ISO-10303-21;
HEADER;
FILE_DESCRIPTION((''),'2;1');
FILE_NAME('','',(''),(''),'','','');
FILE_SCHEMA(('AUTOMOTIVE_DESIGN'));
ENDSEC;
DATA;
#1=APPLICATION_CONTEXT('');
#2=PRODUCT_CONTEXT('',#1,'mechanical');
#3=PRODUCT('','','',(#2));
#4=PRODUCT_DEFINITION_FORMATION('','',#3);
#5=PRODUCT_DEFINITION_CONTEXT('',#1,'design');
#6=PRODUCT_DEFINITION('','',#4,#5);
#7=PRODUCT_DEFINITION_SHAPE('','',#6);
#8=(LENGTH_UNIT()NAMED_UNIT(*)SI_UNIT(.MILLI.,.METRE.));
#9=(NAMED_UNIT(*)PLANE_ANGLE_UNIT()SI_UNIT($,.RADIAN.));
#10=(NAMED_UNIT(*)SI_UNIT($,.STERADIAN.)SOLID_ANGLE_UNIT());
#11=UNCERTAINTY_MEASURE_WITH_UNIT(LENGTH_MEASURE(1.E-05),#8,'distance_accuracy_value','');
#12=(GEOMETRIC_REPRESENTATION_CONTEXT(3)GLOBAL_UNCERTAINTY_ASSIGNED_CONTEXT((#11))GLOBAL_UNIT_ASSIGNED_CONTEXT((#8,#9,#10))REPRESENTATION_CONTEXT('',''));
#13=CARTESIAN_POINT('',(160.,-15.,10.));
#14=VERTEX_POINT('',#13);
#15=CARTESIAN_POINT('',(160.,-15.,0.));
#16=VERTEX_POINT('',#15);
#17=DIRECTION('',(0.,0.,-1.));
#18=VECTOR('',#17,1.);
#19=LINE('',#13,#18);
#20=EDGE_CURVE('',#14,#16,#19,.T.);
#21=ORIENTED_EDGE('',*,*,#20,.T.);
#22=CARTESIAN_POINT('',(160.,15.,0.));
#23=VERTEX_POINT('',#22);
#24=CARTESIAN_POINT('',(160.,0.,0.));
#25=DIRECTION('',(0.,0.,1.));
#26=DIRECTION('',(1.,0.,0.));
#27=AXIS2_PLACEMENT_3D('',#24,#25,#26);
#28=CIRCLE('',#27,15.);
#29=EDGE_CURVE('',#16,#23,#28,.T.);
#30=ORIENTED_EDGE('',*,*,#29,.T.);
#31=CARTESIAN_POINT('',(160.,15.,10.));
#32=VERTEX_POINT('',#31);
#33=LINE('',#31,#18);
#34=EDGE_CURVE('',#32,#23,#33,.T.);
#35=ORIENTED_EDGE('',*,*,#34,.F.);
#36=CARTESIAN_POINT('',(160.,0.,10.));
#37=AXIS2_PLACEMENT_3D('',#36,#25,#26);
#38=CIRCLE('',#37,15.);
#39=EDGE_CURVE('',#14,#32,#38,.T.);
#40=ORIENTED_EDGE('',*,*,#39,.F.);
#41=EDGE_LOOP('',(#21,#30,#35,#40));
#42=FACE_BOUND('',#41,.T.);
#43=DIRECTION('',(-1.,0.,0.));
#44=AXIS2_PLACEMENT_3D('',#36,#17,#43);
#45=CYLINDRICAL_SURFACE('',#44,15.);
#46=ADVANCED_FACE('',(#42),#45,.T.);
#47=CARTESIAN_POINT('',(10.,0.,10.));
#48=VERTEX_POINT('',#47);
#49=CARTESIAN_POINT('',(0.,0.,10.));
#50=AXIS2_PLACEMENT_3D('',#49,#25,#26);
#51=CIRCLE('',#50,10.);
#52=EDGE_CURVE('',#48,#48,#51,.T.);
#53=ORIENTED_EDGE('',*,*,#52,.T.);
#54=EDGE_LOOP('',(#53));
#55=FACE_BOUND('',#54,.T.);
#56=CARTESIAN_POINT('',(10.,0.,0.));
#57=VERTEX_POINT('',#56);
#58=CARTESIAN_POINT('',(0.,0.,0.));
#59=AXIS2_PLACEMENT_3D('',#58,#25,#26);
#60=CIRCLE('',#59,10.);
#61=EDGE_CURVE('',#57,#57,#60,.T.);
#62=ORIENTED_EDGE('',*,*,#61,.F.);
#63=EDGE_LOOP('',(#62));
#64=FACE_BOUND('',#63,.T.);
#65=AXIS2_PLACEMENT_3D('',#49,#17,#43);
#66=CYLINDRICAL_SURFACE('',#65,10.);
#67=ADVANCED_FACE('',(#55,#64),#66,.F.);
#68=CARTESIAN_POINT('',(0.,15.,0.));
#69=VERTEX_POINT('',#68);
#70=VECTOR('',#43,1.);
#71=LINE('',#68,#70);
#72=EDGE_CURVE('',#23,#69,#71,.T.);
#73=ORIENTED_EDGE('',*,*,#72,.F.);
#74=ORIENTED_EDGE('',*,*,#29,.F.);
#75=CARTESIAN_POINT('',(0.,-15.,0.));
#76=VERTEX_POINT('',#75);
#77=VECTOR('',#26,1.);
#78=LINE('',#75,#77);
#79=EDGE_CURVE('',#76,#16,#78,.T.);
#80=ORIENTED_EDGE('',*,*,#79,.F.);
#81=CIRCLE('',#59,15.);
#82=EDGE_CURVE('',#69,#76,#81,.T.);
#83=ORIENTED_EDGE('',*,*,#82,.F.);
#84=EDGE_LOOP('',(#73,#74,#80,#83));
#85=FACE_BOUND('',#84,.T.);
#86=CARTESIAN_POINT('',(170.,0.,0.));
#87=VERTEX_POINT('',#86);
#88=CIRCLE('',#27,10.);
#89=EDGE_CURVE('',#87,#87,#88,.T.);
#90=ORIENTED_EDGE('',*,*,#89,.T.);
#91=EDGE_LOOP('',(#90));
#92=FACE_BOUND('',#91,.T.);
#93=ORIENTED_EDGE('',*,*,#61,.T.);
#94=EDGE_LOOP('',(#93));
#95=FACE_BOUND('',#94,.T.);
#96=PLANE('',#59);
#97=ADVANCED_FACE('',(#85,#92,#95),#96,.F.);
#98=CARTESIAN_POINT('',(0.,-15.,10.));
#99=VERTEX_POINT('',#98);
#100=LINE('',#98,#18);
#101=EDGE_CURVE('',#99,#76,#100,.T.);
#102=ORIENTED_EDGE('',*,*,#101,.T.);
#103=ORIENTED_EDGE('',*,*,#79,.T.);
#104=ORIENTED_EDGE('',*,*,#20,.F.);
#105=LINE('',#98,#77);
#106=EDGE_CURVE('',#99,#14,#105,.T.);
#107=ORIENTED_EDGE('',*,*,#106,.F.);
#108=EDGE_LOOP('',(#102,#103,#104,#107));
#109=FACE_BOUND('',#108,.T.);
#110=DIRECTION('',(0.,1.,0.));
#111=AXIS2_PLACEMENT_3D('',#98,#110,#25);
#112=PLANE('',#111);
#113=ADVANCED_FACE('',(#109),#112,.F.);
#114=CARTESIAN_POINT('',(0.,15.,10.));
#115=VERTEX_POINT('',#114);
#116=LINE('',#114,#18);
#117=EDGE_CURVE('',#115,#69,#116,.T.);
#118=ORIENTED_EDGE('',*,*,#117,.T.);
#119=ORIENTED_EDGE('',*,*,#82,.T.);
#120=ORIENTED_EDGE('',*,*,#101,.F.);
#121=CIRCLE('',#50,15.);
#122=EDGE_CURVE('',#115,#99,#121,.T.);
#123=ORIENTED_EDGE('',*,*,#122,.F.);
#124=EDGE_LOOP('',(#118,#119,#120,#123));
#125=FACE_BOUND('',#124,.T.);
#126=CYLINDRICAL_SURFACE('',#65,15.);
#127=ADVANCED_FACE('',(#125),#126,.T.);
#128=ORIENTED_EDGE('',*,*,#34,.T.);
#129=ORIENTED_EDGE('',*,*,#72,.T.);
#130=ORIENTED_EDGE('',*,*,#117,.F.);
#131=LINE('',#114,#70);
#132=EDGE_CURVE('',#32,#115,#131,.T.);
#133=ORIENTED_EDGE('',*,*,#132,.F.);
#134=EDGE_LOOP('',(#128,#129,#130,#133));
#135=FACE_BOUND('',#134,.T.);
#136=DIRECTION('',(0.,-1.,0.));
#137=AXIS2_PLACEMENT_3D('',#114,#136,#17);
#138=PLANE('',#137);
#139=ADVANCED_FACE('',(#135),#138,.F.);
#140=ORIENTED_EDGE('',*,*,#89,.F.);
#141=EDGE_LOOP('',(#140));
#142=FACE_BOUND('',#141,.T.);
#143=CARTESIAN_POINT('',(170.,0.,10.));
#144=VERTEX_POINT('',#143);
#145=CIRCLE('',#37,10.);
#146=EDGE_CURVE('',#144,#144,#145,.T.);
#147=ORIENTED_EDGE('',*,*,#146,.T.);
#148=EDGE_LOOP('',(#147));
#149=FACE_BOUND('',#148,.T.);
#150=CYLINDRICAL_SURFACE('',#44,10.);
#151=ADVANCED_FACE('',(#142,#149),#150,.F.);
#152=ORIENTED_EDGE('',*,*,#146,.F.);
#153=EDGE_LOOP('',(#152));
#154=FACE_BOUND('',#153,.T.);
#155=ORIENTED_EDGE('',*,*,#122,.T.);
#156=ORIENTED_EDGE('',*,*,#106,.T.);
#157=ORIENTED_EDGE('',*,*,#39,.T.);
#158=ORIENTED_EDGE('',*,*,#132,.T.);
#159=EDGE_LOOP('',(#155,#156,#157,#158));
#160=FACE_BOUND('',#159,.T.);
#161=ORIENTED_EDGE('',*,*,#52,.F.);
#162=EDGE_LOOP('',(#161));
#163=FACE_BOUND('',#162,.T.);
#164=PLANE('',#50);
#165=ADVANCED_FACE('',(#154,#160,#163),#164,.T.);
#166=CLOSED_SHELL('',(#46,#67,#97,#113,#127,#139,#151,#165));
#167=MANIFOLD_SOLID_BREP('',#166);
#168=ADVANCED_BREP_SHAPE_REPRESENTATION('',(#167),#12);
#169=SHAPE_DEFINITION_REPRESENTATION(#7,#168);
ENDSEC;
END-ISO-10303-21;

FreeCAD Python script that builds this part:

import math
import FreeCAD as App
import Part
import Sketcher

doc = App.newDocument("Part")
body = doc.addObject("PartDesign::Body", "Body")

sketch1 = doc.addObject("Sketcher::SketchObject", "Sketch")
body.addObject(sketch1)
sketch1.AttachmentSupport = (doc.XY_Plane, [""])
sketch1.MapMode = "FlatFace"
sketch1.addGeometry([
    Part.LineSegment(App.Vector(160, 15, 0), App.Vector(0, 15, 0)),
    Part.ArcOfCircle(Part.Circle(App.Vector(0, 0, 0), App.Vector(0, 0, 1), 15), math.radians(90), math.radians(270)),
    Part.LineSegment(App.Vector(0, -15, 0), App.Vector(160, -15, 0)),
    Part.ArcOfCircle(Part.Circle(App.Vector(160, 0, 0), App.Vector(0, 0, 1), 15), math.radians(-90), math.radians(90)),
    Part.Circle(App.Vector(160, 0, 0), App.Vector(0, 0, 1), 10),
    Part.Circle(App.Vector(0, 0, 0), App.Vector(0, 0, 1), 10),
], False)
sketch1.addConstraint([
    Sketcher.Constraint("Tangent", 0, 2, 1, 1),
    Sketcher.Constraint("Tangent", 1, 2, 2, 1),
    Sketcher.Constraint("Tangent", 2, 2, 3, 1),
    Sketcher.Constraint("Tangent", 3, 2, 0, 1),
    Sketcher.Constraint("Horizontal", 0),
    Sketcher.Constraint("Horizontal", 2),
    Sketcher.Constraint("Coincident", 1, 3, -1, 1),
    Sketcher.Constraint("Coincident", 5, 3, -1, 1),
    Sketcher.Constraint("Coincident", 4, 3, 3, 3),
    Sketcher.Constraint("Equal", 4, 5),
    Sketcher.Constraint("Diameter", 4, 20.0),
    Sketcher.Constraint("Radius", 1, 15.0),
    Sketcher.Constraint("DistanceX", 0, 2, 0, 1, 160.0),
])
pad1 = doc.addObject("PartDesign::Pad", "Pad")
body.addObject(pad1)
pad1.Profile = sketch1
pad1.Length = 10

doc.recompute()
